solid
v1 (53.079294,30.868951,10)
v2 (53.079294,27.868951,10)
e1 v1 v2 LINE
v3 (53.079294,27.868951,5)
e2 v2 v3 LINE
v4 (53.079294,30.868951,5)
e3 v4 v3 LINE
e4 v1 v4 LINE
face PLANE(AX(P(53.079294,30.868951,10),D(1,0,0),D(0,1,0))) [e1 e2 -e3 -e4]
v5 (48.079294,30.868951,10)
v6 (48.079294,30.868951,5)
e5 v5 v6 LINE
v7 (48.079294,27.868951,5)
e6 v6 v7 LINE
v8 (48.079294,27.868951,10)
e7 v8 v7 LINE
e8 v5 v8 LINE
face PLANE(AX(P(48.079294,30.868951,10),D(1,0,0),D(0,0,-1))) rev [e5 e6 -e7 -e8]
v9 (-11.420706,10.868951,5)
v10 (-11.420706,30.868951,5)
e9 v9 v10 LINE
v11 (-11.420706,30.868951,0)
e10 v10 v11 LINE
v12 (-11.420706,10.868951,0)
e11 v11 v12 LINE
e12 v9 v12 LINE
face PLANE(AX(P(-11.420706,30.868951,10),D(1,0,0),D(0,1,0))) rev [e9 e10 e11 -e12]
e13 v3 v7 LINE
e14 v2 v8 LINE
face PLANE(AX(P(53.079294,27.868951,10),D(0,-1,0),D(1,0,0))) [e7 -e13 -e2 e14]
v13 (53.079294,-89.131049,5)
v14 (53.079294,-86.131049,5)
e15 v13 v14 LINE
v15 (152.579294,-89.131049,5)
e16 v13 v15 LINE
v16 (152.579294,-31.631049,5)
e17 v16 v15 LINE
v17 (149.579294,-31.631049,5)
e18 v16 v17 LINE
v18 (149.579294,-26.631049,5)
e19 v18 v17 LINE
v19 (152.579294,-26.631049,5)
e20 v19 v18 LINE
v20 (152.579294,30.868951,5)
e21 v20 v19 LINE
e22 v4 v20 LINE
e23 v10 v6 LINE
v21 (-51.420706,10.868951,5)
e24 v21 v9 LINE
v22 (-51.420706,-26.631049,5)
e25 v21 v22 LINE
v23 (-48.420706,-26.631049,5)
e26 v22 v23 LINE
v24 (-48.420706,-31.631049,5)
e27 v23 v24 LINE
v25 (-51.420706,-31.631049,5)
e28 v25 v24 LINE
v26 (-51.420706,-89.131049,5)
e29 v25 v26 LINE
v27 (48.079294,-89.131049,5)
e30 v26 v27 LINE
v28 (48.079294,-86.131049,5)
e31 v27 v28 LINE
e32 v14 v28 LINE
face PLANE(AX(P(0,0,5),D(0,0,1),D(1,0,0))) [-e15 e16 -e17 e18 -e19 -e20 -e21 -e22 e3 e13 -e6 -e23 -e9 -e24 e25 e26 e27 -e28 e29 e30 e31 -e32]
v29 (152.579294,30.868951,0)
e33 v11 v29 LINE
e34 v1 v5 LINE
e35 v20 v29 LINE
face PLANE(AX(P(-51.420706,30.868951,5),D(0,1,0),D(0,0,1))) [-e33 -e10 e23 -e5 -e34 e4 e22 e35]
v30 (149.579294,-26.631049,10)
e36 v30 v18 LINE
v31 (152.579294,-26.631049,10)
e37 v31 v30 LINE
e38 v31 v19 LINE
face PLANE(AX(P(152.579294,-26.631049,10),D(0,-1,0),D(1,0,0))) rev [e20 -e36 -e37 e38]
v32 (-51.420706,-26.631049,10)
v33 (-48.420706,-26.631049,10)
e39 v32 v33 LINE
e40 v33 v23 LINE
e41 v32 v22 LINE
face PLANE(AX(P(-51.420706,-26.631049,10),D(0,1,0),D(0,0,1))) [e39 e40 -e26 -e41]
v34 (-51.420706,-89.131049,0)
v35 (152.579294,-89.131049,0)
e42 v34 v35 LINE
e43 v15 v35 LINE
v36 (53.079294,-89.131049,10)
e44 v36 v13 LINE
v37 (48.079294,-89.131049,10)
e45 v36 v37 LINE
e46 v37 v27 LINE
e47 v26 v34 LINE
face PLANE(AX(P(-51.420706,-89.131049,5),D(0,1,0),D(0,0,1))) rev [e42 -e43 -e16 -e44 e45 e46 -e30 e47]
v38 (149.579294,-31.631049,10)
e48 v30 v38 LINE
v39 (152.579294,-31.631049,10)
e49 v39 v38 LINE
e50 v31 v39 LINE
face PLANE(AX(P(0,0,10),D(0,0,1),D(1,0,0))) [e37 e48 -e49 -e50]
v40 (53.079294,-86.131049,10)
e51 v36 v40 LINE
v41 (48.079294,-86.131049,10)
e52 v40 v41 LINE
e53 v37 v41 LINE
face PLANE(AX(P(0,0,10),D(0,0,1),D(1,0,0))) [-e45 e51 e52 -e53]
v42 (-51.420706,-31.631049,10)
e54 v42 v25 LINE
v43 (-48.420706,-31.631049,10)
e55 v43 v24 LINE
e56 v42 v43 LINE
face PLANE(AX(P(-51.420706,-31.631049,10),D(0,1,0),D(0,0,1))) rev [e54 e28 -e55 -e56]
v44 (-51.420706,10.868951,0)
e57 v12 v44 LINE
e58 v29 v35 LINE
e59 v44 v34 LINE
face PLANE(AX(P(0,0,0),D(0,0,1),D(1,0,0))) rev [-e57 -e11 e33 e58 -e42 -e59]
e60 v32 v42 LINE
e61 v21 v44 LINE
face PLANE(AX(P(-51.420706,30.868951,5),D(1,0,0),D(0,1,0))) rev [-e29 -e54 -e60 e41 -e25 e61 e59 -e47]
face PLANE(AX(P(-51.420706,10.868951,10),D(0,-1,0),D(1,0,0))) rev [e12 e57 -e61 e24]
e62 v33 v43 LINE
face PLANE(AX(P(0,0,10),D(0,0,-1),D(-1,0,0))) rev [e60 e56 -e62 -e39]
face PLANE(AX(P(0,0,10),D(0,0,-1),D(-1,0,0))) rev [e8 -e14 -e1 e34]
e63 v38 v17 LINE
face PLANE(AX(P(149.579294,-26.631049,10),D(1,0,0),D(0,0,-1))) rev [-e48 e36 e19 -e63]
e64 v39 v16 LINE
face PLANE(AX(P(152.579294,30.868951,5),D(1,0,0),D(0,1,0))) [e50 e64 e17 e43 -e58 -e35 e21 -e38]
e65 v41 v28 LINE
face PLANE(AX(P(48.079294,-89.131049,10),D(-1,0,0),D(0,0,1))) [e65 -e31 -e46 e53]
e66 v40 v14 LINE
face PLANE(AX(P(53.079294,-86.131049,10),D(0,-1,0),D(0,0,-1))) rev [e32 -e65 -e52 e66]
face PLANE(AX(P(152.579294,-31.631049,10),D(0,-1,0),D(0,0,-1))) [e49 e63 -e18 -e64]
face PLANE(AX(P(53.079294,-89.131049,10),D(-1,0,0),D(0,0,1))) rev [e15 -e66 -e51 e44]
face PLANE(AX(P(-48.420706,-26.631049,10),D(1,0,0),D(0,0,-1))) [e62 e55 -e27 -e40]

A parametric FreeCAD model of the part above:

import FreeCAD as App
import Part
import Sketcher

doc = App.newDocument("Part")
body = doc.addObject("PartDesign::Body", "Body")

# Sketch on XY plane
sketch1 = body.newObject("Sketcher::SketchObject", "Sketch")
sketch1.AttachmentSupport = (doc.getObject("XY_Plane"), [""])
sketch1.MapMode = "FlatFace"
sketch1.addGeometry([
    Part.LineSegment(App.Vector(-51.420706, 30.868951, 0), App.Vector(-51.420706, -89.131049, 0)),
    Part.LineSegment(App.Vector(-51.420706, -89.131049, 0), App.Vector(152.579294, -89.131049, 0)),
    Part.LineSegment(App.Vector(152.579294, -89.131049, 0), App.Vector(152.579294, 30.868951, 0)),
    Part.LineSegment(App.Vector(152.579294, 30.868951, 0), App.Vector(-51.420706, 30.868951, 0)),
], False)
sketch1.addConstraint([
    Sketcher.Constraint("Coincident", 0, 2, 1, 1),
    Sketcher.Constraint("Coincident", 1, 2, 2, 1),
    Sketcher.Constraint("Coincident", 2, 2, 3, 1),
    Sketcher.Constraint("Coincident", 3, 2, 0, 1),
    Sketcher.Constraint("Vertical", 0),
    Sketcher.Constraint("Horizontal", 1),
    Sketcher.Constraint("Vertical", 2),
    Sketcher.Constraint("Horizontal", 3),
    Sketcher.Constraint("DistanceX", 1, 1, 1, 2, 204.0),
    Sketcher.Constraint("DistanceY", 0, 2, 0, 1, 120.0),
    Sketcher.Constraint("DistanceY", 0, 2, -1, 1, 89.131049),
    Sketcher.Constraint("DistanceX", 0, 2, -1, 1, 51.420706),
])
pad1 = body.newObject("PartDesign::Pad", "Pad")
pad1.Profile = sketch1
pad1.Length = 5

# Sketch on XY plane
sketch2 = body.newObject("Sketcher::SketchObject", "Sketch001")
sketch2.AttachmentSupport = (doc.getObject("XY_Plane"), [""])
sketch2.MapMode = "FlatFace"
sketch2.AttachmentOffset = App.Placement(App.Vector(0, 0, 5), App.Rotation())
sketch2.addGeometry([
    Part.LineSegment(App.Vector(48.079294, 30.868951, 0), App.Vector(48.079294, 27.868951, 0)),  # 0
    Part.LineSegment(App.Vector(48.079294, 27.868951, 0), App.Vector(53.079294, 27.868951, 0)),  # 1
    Part.LineSegment(App.Vector(53.079294, 27.868951, 0), App.Vector(53.079294, 30.868951, 0)),  # 2
    Part.LineSegment(App.Vector(53.079294, 30.868951, 0), App.Vector(48.079294, 30.868951, 0)),  # 3
    Part.LineSegment(App.Vector(48.079294, -86.131049, 0), App.Vector(48.079294, -89.131049, 0)),  # 4
    Part.LineSegment(App.Vector(48.079294, -89.131049, 0), App.Vector(53.079294, -89.131049, 0)),  # 5
    Part.LineSegment(App.Vector(53.079294, -89.131049, 0), App.Vector(53.079294, -86.131049, 0)),  # 6
    Part.LineSegment(App.Vector(53.079294, -86.131049, 0), App.Vector(48.079294, -86.131049, 0)),  # 7
    Part.LineSegment(App.Vector(-51.420706, -26.631049, 0), App.Vector(-51.420706, -31.631049, 0)),  # 8
    Part.LineSegment(App.Vector(-51.420706, -31.631049, 0), App.Vector(-48.420706, -31.631049, 0)),  # 9
    Part.LineSegment(App.Vector(-48.420706, -31.631049, 0), App.Vector(-48.420706, -26.631049, 0)),  # 10
    Part.LineSegment(App.Vector(-48.420706, -26.631049, 0), App.Vector(-51.420706, -26.631049, 0)),  # 11
    Part.LineSegment(App.Vector(149.579294, -26.631049, 0), App.Vector(149.579294, -31.631049, 0)),  # 12
    Part.LineSegment(App.Vector(149.579294, -31.631049, 0), App.Vector(152.579294, -31.631049, 0)),  # 13
    Part.LineSegment(App.Vector(152.579294, -31.631049, 0), App.Vector(152.579294, -26.631049, 0)),  # 14
    Part.LineSegment(App.Vector(152.579294, -26.631049, 0), App.Vector(149.579294, -26.631049, 0)),  # 15
], False)
sketch2.addConstraint([
    Sketcher.Constraint("Coincident", 0, 2, 1, 1),
    Sketcher.Constraint("Coincident", 1, 2, 2, 1),
    Sketcher.Constraint("Coincident", 2, 2, 3, 1),
    Sketcher.Constraint("Coincident", 3, 2, 0, 1),
    Sketcher.Constraint("Coincident", 4, 2, 5, 1),
    Sketcher.Constraint("Coincident", 5, 2, 6, 1),
    Sketcher.Constraint("Coincident", 6, 2, 7, 1),
    Sketcher.Constraint("Coincident", 7, 2, 4, 1),
    Sketcher.Constraint("Coincident", 8, 2, 9, 1),
    Sketcher.Constraint("Coincident", 9, 2, 10, 1),
    Sketcher.Constraint("Coincident", 10, 2, 11, 1),
    Sketcher.Constraint("Coincident", 11, 2, 8, 1),
    Sketcher.Constraint("Coincident", 12, 2, 13, 1),
    Sketcher.Constraint("Coincident", 13, 2, 14, 1),
    Sketcher.Constraint("Coincident", 14, 2, 15, 1),
    Sketcher.Constraint("Coincident", 15, 2, 12, 1),
    Sketcher.Constraint("Vertical", 0),
    Sketcher.Constraint("Horizontal", 1),
    Sketcher.Constraint("Vertical", 2),
    Sketcher.Constraint("Horizontal", 3),
    Sketcher.Constraint("Vertical", 4),
    Sketcher.Constraint("Horizontal", 5),
    Sketcher.Constraint("Vertical", 6),
    Sketcher.Constraint("Horizontal", 7),
    Sketcher.Constraint("Vertical", 8),
    Sketcher.Constraint("Horizontal", 9),
    Sketcher.Constraint("Vertical", 10),
    Sketcher.Constraint("Horizontal", 11),
    Sketcher.Constraint("Vertical", 12),
    Sketcher.Constraint("Horizontal", 13),
    Sketcher.Constraint("Vertical", 14),
    Sketcher.Constraint("Horizontal", 15),
    Sketcher.Constraint("Horizontal", 9, 2, 12, 2),
    Sketcher.Constraint("Horizontal", 11, 2, 14, 2),
    Sketcher.Constraint("Vertical", 3, 2, 4, 2),
    Sketcher.Constraint("Vertical", 2, 2, 5, 2),
    Sketcher.Constraint("Equal", 11, 13),
    Sketcher.Constraint("Equal", 15, 0),
    Sketcher.Constraint("Equal", 2, 4),
    Sketcher.Constraint("Equal", 7, 8),
    Sketcher.Constraint("DistanceX", 1, 1, 1, 2, 5.0),
    Sketcher.Constraint("DistanceX", 9, 1, 9, 2, 3.0),
    Sketcher.Constraint("DistanceY", 4, 2, 0, 2, 117.0),
    Sketcher.Constraint("DistanceX", 8, 2, 7, 2, 99.5),
    Sketcher.Constraint("DistanceY", 7, 2, 8, 2, 54.5),
    Sketcher.Constraint("DistanceX", 6, 2, 12, 2, 96.5),
    Sketcher.Constraint("DistanceY", -1, 1, 0, 2, 27.868951),
    Sketcher.Constraint("DistanceX", -1, 1, 0, 2, 48.079294),
])
pad2 = body.newObject("PartDesign::Pad", "Pad001")
pad2.Profile = sketch2
pad2.Length = 5

# Sketch on XY plane
sketch3 = body.newObject("Sketcher::SketchObject", "Sketch002")
sketch3.AttachmentSupport = (doc.getObject("XY_Plane"), [""])
sketch3.MapMode = "FlatFace"
sketch3.addGeometry([
    Part.LineSegment(App.Vector(-11.420706, 30.868951, 0), App.Vector(-11.420706, 10.868951, 0)),
    Part.LineSegment(App.Vector(-11.420706, 10.868951, 0), App.Vector(-51.420706, 10.868951, 0)),
    Part.LineSegment(App.Vector(-51.420706, 10.868951, 0), App.Vector(-51.420706, 30.868951, 0)),
    Part.LineSegment(App.Vector(-51.420706, 30.868951, 0), App.Vector(-11.420706, 30.868951, 0)),
], False)
sketch3.addConstraint([
    Sketcher.Constraint("Coincident", 0, 2, 1, 1),
    Sketcher.Constraint("Coincident", 1, 2, 2, 1),
    Sketcher.Constraint("Coincident", 2, 2, 3, 1),
    Sketcher.Constraint("Coincident", 3, 2, 0, 1),
    Sketcher.Constraint("Vertical", 0),
    Sketcher.Constraint("Horizontal", 1),
    Sketcher.Constraint("Vertical", 2),
    Sketcher.Constraint("Horizontal", 3),
    Sketcher.Constraint("DistanceX", 1, 2, 1, 1, 40.0),
    Sketcher.Constraint("DistanceY", 0, 2, 0, 1, 20.0),
    Sketcher.Constraint("DistanceY", -1, 1, 0, 2, 10.868951),
    Sketcher.Constraint("DistanceX", 0, 2, -1, 1, 11.420706),
])
pocket1 = body.newObject("PartDesign::Pocket", "Pocket")
pocket1.Profile = sketch3
pocket1.Length = 10
pocket1.Reversed = True

doc.recompute()
